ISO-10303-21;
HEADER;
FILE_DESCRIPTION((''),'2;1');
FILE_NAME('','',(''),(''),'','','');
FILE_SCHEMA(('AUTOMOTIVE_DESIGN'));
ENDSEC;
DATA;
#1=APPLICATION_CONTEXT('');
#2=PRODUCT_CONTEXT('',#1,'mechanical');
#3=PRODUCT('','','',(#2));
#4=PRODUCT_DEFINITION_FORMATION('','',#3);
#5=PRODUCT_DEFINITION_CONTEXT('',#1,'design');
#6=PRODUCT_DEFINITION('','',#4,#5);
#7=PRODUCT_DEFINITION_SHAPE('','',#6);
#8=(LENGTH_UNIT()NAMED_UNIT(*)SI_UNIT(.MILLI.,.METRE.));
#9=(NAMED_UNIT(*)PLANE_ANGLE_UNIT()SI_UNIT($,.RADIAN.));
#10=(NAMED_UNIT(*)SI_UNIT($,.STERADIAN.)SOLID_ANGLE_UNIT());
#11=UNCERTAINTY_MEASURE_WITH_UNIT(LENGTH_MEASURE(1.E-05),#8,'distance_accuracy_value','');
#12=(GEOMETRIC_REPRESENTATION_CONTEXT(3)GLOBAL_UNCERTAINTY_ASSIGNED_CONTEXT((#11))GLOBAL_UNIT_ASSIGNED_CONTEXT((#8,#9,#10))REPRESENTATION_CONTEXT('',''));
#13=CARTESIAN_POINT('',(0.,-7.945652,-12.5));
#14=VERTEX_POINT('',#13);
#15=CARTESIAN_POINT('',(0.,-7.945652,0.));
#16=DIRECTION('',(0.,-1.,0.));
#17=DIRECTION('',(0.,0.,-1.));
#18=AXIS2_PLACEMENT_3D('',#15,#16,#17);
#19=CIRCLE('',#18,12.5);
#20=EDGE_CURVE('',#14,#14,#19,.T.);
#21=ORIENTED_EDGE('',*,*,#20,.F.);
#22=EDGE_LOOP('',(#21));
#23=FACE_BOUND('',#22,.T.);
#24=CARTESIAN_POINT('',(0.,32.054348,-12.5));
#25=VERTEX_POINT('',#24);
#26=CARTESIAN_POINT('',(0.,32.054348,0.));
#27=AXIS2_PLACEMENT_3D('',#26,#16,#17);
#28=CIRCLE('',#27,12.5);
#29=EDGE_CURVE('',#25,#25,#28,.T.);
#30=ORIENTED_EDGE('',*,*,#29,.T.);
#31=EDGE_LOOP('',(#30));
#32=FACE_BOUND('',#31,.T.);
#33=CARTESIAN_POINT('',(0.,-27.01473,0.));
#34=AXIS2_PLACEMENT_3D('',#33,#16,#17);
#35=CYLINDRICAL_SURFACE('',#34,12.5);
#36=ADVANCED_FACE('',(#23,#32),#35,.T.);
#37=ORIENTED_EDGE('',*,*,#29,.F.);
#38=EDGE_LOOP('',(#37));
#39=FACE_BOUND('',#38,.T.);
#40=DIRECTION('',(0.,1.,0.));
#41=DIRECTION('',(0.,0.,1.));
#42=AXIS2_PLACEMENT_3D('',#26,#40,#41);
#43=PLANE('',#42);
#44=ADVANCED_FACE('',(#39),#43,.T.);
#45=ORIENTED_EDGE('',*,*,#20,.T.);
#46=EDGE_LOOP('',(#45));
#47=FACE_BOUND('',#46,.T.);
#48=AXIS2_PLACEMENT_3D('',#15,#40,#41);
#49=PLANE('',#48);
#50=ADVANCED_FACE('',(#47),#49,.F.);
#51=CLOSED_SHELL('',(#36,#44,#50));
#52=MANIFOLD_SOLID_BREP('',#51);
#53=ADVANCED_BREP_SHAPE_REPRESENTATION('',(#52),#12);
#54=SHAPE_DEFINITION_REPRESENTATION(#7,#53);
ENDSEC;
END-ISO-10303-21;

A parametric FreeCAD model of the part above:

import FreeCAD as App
import Part
import Sketcher
Q = App.Units.Quantity

doc = App.newDocument("Part")
body = doc.addObject("PartDesign::Body", "Body")

# Sketch on XY plane
sketch1 = body.newObject("Sketcher::SketchObject", "Sketch")
sketch1.AttachmentSupport = (doc.getObject("XY_Plane"), [""])
sketch1.MapMode = "FlatFace"
sketch1.addGeometry(Part.LineSegment(App.Vector(0, -8, 0), App.Vector(0, 32, 0)), False)
sketch1.addGeometry(Part.LineSegment(App.Vector(0, 32, 0), App.Vector(-12, 32, 0)), False)
sketch1.addGeometry(Part.LineSegment(App.Vector(-12, 32, 0), App.Vector(-12, -8, 0)), False)
sketch1.addGeometry(Part.LineSegment(App.Vector(-12, -8, 0), App.Vector(0, -8, 0)), False)
sketch1.addConstraint(Sketcher.Constraint("Coincident", 0, 2, 1, 1))
sketch1.addConstraint(Sketcher.Constraint("Coincident", 1, 2, 2, 1))
sketch1.addConstraint(Sketcher.Constraint("Coincident", 2, 2, 3, 1))
sketch1.addConstraint(Sketcher.Constraint("Coincident", 3, 2, 0, 1))
sketch1.addConstraint(Sketcher.Constraint("Vertical", 0))
sketch1.addConstraint(Sketcher.Constraint("Horizontal", 1))
sketch1.addConstraint(Sketcher.Constraint("Vertical", 2))
sketch1.addConstraint(Sketcher.Constraint("Horizontal", 3))
sketch1.addConstraint(Sketcher.Constraint("PointOnObject", 0, 2, -2))
sketch1.addConstraint(Sketcher.Constraint("DistanceY", 0, 1, 0, 2, Q("40 mm")))
sketch1.addConstraint(Sketcher.Constraint("DistanceX", 1, 2, 1, 1, Q("12.5 mm")))
sketch1.addConstraint(Sketcher.Constraint("DistanceY", -1, 1, 0, 2, Q("32.054348 mm")))
revolution = body.newObject("PartDesign::Revolution", "Revolution")
revolution.Profile = sketch1
revolution.ReferenceAxis = (sketch1, ["V_Axis"])
revolution.Angle = 360

doc.recompute()
